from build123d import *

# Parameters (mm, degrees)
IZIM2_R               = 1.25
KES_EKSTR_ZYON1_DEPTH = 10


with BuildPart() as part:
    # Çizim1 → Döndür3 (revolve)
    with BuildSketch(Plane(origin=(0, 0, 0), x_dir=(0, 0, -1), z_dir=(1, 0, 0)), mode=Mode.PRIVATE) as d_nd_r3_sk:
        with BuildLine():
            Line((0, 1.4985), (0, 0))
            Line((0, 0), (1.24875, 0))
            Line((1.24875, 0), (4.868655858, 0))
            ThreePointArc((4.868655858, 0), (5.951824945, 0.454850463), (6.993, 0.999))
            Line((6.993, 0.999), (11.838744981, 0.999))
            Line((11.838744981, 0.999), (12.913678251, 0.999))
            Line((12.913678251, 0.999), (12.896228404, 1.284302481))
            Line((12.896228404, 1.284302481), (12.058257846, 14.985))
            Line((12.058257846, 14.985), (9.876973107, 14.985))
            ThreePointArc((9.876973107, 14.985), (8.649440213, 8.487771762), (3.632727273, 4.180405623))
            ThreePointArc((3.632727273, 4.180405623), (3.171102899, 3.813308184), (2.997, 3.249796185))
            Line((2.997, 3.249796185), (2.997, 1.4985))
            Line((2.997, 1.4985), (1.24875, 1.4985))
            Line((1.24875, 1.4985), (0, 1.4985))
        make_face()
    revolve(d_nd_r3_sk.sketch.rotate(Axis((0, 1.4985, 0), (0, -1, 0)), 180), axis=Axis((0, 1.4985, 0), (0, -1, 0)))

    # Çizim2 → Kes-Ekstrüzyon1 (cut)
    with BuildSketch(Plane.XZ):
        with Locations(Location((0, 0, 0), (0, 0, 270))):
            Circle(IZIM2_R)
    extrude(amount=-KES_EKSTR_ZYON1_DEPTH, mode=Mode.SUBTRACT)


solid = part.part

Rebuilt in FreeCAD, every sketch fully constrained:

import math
import FreeCAD as App
import Part
import Sketcher
Q = App.Units.Quantity

doc = App.newDocument("Part")
body = doc.addObject("PartDesign::Body", "Body")

# Sketch on YZ plane
sketch1 = doc.addObject("Sketcher::SketchObject", "Sketch")
body.addObject(sketch1)
sketch1.AttachmentSupport = (doc.YZ_Plane, [""])
sketch1.MapMode = "FlatFace"
sketch1.addGeometry([
    Part.LineSegment(App.Vector(1.4985, 0, 0), App.Vector(0, 0, 0)),  # 0
    Part.LineSegment(App.Vector(0, 0, 0), App.Vector(0, -4.868656, 0)),  # 1
    Part.ArcOfCircle(Part.Circle(App.Vector(13.111231, 0, 0), App.Vector(0, 0, 1), 13.986), math.radians(-159.628289), math.radians(-150)),  # 2
    Part.LineSegment(App.Vector(0.999, -6.993, 0), App.Vector(0.999, -12.913678, 0)),  # 3
    Part.LineSegment(App.Vector(0.999, -12.913678, 0), App.Vector(1.284302, -12.896228, 0)),  # 4
    Part.LineSegment(App.Vector(1.284302, -12.896228, 0), App.Vector(14.985, -12.058258, 0)),  # 5
    Part.LineSegment(App.Vector(14.985, -12.058258, 0), App.Vector(14.985, -9.876973, 0)),  # 6
    Part.ArcOfCircle(Part.Circle(App.Vector(13.4865, 0, 0), App.Vector(0, 0, 1), 9.99), math.radians(-158.676314), math.radians(-81.373073)),  # 7
    Part.ArcOfCircle(Part.Circle(App.Vector(3.249796, -3.996, 0), App.Vector(0, 0, 1), 0.999), math.radians(21.323686), math.radians(90)),  # 8
    Part.LineSegment(App.Vector(3.249796, -2.997, 0), App.Vector(1.4985, -2.997, 0)),  # 9
    Part.LineSegment(App.Vector(1.4985, -2.997, 0), App.Vector(1.4985, 0, 0)),  # 10
], False)
sketch1.addConstraint([
    Sketcher.Constraint("Coincident", 0, 2, 1, 1),
    Sketcher.Constraint("Coincident", 1, 2, 2, 1),
    Sketcher.Constraint("Coincident", 2, 2, 3, 1),
    Sketcher.Constraint("Coincident", 3, 2, 4, 1),
    Sketcher.Constraint("Coincident", 4, 2, 5, 1),
    Sketcher.Constraint("Coincident", 5, 2, 6, 1),
    Sketcher.Constraint("Coincident", 6, 2, 7, 2),
    Sketcher.Constraint("Tangent", 7, 1, 8, 1),
    Sketcher.Constraint("Tangent", 8, 2, 9, 1),
    Sketcher.Constraint("Coincident", 9, 2, 10, 1),
    Sketcher.Constraint("Coincident", 10, 2, 0, 1),
    Sketcher.Constraint("Horizontal", 0),
    Sketcher.Constraint("Vertical", 1),
    Sketcher.Constraint("Vertical", 3),
    Sketcher.Constraint("Vertical", 6),
    Sketcher.Constraint("Horizontal", 9),
    Sketcher.Constraint("Vertical", 10),
    Sketcher.Constraint("Coincident", 0, 2, -1, 1),
    Sketcher.Constraint("PointOnObject", 2, 3, -1),
    Sketcher.Constraint("PointOnObject", 7, 3, -1),
    Sketcher.Constraint("Parallel", 4, 5),
    Sketcher.Constraint("Radius", 7, Q("9.99 mm")),
    Sketcher.Constraint("Angle", 4, Q("3.5 deg")),
    Sketcher.Constraint("Radius", 2, Q("13.986 mm")),
    Sketcher.Constraint("Radius", 8, Q("0.999 mm")),
    Sketcher.Constraint("DistanceY", 10, 1, 10, 2, Q("2.997 mm")),
    Sketcher.Constraint("DistanceX", 0, 2, 0, 1, Q("1.4985 mm")),
    Sketcher.Constraint("DistanceX", -1, 1, 2, 2, Q("0.999 mm")),
    Sketcher.Constraint("DistanceY", 2, 2, -1, 1, Q("6.993 mm")),
    Sketcher.Constraint("DistanceX", -1, 1, 5, 2, Q("14.985 mm")),
    Sketcher.Constraint("Distance", 5, Q("13.7263 mm")),
    Sketcher.Constraint("DistanceY", 3, 2, 3, 1, Q("5.920678 mm")),
    Sketcher.Constraint("DistanceX", -1, 1, 7, 3, Q("13.4865 mm")),
])
revolution = doc.addObject("PartDesign::Revolution", "Revolution")
body.addObject(revolution)
revolution.Profile = sketch1
revolution.ReferenceAxis = (sketch1, ["H_Axis"])
revolution.Angle = 360

# Sketch on XZ plane
sketch2 = doc.addObject("Sketcher::SketchObject", "Sketch001")
body.addObject(sketch2)
sketch2.AttachmentSupport = (doc.XZ_Plane, [""])
sketch2.MapMode = "FlatFace"
sketch2.addGeometry(Part.Circle(App.Vector(0, 0, 0), App.Vector(0, 0, 1), 1.25), False)
sketch2.addConstraint([
    Sketcher.Constraint("Coincident", 0, 3, -1, 1),
    Sketcher.Constraint("Diameter", 0, Q("2.5 mm")),
])
pocket1 = doc.addObject("PartDesign::Pocket", "Pocket")
body.addObject(pocket1)
pocket1.Profile = sketch2
pocket1.Length = 10

doc.recompute()
